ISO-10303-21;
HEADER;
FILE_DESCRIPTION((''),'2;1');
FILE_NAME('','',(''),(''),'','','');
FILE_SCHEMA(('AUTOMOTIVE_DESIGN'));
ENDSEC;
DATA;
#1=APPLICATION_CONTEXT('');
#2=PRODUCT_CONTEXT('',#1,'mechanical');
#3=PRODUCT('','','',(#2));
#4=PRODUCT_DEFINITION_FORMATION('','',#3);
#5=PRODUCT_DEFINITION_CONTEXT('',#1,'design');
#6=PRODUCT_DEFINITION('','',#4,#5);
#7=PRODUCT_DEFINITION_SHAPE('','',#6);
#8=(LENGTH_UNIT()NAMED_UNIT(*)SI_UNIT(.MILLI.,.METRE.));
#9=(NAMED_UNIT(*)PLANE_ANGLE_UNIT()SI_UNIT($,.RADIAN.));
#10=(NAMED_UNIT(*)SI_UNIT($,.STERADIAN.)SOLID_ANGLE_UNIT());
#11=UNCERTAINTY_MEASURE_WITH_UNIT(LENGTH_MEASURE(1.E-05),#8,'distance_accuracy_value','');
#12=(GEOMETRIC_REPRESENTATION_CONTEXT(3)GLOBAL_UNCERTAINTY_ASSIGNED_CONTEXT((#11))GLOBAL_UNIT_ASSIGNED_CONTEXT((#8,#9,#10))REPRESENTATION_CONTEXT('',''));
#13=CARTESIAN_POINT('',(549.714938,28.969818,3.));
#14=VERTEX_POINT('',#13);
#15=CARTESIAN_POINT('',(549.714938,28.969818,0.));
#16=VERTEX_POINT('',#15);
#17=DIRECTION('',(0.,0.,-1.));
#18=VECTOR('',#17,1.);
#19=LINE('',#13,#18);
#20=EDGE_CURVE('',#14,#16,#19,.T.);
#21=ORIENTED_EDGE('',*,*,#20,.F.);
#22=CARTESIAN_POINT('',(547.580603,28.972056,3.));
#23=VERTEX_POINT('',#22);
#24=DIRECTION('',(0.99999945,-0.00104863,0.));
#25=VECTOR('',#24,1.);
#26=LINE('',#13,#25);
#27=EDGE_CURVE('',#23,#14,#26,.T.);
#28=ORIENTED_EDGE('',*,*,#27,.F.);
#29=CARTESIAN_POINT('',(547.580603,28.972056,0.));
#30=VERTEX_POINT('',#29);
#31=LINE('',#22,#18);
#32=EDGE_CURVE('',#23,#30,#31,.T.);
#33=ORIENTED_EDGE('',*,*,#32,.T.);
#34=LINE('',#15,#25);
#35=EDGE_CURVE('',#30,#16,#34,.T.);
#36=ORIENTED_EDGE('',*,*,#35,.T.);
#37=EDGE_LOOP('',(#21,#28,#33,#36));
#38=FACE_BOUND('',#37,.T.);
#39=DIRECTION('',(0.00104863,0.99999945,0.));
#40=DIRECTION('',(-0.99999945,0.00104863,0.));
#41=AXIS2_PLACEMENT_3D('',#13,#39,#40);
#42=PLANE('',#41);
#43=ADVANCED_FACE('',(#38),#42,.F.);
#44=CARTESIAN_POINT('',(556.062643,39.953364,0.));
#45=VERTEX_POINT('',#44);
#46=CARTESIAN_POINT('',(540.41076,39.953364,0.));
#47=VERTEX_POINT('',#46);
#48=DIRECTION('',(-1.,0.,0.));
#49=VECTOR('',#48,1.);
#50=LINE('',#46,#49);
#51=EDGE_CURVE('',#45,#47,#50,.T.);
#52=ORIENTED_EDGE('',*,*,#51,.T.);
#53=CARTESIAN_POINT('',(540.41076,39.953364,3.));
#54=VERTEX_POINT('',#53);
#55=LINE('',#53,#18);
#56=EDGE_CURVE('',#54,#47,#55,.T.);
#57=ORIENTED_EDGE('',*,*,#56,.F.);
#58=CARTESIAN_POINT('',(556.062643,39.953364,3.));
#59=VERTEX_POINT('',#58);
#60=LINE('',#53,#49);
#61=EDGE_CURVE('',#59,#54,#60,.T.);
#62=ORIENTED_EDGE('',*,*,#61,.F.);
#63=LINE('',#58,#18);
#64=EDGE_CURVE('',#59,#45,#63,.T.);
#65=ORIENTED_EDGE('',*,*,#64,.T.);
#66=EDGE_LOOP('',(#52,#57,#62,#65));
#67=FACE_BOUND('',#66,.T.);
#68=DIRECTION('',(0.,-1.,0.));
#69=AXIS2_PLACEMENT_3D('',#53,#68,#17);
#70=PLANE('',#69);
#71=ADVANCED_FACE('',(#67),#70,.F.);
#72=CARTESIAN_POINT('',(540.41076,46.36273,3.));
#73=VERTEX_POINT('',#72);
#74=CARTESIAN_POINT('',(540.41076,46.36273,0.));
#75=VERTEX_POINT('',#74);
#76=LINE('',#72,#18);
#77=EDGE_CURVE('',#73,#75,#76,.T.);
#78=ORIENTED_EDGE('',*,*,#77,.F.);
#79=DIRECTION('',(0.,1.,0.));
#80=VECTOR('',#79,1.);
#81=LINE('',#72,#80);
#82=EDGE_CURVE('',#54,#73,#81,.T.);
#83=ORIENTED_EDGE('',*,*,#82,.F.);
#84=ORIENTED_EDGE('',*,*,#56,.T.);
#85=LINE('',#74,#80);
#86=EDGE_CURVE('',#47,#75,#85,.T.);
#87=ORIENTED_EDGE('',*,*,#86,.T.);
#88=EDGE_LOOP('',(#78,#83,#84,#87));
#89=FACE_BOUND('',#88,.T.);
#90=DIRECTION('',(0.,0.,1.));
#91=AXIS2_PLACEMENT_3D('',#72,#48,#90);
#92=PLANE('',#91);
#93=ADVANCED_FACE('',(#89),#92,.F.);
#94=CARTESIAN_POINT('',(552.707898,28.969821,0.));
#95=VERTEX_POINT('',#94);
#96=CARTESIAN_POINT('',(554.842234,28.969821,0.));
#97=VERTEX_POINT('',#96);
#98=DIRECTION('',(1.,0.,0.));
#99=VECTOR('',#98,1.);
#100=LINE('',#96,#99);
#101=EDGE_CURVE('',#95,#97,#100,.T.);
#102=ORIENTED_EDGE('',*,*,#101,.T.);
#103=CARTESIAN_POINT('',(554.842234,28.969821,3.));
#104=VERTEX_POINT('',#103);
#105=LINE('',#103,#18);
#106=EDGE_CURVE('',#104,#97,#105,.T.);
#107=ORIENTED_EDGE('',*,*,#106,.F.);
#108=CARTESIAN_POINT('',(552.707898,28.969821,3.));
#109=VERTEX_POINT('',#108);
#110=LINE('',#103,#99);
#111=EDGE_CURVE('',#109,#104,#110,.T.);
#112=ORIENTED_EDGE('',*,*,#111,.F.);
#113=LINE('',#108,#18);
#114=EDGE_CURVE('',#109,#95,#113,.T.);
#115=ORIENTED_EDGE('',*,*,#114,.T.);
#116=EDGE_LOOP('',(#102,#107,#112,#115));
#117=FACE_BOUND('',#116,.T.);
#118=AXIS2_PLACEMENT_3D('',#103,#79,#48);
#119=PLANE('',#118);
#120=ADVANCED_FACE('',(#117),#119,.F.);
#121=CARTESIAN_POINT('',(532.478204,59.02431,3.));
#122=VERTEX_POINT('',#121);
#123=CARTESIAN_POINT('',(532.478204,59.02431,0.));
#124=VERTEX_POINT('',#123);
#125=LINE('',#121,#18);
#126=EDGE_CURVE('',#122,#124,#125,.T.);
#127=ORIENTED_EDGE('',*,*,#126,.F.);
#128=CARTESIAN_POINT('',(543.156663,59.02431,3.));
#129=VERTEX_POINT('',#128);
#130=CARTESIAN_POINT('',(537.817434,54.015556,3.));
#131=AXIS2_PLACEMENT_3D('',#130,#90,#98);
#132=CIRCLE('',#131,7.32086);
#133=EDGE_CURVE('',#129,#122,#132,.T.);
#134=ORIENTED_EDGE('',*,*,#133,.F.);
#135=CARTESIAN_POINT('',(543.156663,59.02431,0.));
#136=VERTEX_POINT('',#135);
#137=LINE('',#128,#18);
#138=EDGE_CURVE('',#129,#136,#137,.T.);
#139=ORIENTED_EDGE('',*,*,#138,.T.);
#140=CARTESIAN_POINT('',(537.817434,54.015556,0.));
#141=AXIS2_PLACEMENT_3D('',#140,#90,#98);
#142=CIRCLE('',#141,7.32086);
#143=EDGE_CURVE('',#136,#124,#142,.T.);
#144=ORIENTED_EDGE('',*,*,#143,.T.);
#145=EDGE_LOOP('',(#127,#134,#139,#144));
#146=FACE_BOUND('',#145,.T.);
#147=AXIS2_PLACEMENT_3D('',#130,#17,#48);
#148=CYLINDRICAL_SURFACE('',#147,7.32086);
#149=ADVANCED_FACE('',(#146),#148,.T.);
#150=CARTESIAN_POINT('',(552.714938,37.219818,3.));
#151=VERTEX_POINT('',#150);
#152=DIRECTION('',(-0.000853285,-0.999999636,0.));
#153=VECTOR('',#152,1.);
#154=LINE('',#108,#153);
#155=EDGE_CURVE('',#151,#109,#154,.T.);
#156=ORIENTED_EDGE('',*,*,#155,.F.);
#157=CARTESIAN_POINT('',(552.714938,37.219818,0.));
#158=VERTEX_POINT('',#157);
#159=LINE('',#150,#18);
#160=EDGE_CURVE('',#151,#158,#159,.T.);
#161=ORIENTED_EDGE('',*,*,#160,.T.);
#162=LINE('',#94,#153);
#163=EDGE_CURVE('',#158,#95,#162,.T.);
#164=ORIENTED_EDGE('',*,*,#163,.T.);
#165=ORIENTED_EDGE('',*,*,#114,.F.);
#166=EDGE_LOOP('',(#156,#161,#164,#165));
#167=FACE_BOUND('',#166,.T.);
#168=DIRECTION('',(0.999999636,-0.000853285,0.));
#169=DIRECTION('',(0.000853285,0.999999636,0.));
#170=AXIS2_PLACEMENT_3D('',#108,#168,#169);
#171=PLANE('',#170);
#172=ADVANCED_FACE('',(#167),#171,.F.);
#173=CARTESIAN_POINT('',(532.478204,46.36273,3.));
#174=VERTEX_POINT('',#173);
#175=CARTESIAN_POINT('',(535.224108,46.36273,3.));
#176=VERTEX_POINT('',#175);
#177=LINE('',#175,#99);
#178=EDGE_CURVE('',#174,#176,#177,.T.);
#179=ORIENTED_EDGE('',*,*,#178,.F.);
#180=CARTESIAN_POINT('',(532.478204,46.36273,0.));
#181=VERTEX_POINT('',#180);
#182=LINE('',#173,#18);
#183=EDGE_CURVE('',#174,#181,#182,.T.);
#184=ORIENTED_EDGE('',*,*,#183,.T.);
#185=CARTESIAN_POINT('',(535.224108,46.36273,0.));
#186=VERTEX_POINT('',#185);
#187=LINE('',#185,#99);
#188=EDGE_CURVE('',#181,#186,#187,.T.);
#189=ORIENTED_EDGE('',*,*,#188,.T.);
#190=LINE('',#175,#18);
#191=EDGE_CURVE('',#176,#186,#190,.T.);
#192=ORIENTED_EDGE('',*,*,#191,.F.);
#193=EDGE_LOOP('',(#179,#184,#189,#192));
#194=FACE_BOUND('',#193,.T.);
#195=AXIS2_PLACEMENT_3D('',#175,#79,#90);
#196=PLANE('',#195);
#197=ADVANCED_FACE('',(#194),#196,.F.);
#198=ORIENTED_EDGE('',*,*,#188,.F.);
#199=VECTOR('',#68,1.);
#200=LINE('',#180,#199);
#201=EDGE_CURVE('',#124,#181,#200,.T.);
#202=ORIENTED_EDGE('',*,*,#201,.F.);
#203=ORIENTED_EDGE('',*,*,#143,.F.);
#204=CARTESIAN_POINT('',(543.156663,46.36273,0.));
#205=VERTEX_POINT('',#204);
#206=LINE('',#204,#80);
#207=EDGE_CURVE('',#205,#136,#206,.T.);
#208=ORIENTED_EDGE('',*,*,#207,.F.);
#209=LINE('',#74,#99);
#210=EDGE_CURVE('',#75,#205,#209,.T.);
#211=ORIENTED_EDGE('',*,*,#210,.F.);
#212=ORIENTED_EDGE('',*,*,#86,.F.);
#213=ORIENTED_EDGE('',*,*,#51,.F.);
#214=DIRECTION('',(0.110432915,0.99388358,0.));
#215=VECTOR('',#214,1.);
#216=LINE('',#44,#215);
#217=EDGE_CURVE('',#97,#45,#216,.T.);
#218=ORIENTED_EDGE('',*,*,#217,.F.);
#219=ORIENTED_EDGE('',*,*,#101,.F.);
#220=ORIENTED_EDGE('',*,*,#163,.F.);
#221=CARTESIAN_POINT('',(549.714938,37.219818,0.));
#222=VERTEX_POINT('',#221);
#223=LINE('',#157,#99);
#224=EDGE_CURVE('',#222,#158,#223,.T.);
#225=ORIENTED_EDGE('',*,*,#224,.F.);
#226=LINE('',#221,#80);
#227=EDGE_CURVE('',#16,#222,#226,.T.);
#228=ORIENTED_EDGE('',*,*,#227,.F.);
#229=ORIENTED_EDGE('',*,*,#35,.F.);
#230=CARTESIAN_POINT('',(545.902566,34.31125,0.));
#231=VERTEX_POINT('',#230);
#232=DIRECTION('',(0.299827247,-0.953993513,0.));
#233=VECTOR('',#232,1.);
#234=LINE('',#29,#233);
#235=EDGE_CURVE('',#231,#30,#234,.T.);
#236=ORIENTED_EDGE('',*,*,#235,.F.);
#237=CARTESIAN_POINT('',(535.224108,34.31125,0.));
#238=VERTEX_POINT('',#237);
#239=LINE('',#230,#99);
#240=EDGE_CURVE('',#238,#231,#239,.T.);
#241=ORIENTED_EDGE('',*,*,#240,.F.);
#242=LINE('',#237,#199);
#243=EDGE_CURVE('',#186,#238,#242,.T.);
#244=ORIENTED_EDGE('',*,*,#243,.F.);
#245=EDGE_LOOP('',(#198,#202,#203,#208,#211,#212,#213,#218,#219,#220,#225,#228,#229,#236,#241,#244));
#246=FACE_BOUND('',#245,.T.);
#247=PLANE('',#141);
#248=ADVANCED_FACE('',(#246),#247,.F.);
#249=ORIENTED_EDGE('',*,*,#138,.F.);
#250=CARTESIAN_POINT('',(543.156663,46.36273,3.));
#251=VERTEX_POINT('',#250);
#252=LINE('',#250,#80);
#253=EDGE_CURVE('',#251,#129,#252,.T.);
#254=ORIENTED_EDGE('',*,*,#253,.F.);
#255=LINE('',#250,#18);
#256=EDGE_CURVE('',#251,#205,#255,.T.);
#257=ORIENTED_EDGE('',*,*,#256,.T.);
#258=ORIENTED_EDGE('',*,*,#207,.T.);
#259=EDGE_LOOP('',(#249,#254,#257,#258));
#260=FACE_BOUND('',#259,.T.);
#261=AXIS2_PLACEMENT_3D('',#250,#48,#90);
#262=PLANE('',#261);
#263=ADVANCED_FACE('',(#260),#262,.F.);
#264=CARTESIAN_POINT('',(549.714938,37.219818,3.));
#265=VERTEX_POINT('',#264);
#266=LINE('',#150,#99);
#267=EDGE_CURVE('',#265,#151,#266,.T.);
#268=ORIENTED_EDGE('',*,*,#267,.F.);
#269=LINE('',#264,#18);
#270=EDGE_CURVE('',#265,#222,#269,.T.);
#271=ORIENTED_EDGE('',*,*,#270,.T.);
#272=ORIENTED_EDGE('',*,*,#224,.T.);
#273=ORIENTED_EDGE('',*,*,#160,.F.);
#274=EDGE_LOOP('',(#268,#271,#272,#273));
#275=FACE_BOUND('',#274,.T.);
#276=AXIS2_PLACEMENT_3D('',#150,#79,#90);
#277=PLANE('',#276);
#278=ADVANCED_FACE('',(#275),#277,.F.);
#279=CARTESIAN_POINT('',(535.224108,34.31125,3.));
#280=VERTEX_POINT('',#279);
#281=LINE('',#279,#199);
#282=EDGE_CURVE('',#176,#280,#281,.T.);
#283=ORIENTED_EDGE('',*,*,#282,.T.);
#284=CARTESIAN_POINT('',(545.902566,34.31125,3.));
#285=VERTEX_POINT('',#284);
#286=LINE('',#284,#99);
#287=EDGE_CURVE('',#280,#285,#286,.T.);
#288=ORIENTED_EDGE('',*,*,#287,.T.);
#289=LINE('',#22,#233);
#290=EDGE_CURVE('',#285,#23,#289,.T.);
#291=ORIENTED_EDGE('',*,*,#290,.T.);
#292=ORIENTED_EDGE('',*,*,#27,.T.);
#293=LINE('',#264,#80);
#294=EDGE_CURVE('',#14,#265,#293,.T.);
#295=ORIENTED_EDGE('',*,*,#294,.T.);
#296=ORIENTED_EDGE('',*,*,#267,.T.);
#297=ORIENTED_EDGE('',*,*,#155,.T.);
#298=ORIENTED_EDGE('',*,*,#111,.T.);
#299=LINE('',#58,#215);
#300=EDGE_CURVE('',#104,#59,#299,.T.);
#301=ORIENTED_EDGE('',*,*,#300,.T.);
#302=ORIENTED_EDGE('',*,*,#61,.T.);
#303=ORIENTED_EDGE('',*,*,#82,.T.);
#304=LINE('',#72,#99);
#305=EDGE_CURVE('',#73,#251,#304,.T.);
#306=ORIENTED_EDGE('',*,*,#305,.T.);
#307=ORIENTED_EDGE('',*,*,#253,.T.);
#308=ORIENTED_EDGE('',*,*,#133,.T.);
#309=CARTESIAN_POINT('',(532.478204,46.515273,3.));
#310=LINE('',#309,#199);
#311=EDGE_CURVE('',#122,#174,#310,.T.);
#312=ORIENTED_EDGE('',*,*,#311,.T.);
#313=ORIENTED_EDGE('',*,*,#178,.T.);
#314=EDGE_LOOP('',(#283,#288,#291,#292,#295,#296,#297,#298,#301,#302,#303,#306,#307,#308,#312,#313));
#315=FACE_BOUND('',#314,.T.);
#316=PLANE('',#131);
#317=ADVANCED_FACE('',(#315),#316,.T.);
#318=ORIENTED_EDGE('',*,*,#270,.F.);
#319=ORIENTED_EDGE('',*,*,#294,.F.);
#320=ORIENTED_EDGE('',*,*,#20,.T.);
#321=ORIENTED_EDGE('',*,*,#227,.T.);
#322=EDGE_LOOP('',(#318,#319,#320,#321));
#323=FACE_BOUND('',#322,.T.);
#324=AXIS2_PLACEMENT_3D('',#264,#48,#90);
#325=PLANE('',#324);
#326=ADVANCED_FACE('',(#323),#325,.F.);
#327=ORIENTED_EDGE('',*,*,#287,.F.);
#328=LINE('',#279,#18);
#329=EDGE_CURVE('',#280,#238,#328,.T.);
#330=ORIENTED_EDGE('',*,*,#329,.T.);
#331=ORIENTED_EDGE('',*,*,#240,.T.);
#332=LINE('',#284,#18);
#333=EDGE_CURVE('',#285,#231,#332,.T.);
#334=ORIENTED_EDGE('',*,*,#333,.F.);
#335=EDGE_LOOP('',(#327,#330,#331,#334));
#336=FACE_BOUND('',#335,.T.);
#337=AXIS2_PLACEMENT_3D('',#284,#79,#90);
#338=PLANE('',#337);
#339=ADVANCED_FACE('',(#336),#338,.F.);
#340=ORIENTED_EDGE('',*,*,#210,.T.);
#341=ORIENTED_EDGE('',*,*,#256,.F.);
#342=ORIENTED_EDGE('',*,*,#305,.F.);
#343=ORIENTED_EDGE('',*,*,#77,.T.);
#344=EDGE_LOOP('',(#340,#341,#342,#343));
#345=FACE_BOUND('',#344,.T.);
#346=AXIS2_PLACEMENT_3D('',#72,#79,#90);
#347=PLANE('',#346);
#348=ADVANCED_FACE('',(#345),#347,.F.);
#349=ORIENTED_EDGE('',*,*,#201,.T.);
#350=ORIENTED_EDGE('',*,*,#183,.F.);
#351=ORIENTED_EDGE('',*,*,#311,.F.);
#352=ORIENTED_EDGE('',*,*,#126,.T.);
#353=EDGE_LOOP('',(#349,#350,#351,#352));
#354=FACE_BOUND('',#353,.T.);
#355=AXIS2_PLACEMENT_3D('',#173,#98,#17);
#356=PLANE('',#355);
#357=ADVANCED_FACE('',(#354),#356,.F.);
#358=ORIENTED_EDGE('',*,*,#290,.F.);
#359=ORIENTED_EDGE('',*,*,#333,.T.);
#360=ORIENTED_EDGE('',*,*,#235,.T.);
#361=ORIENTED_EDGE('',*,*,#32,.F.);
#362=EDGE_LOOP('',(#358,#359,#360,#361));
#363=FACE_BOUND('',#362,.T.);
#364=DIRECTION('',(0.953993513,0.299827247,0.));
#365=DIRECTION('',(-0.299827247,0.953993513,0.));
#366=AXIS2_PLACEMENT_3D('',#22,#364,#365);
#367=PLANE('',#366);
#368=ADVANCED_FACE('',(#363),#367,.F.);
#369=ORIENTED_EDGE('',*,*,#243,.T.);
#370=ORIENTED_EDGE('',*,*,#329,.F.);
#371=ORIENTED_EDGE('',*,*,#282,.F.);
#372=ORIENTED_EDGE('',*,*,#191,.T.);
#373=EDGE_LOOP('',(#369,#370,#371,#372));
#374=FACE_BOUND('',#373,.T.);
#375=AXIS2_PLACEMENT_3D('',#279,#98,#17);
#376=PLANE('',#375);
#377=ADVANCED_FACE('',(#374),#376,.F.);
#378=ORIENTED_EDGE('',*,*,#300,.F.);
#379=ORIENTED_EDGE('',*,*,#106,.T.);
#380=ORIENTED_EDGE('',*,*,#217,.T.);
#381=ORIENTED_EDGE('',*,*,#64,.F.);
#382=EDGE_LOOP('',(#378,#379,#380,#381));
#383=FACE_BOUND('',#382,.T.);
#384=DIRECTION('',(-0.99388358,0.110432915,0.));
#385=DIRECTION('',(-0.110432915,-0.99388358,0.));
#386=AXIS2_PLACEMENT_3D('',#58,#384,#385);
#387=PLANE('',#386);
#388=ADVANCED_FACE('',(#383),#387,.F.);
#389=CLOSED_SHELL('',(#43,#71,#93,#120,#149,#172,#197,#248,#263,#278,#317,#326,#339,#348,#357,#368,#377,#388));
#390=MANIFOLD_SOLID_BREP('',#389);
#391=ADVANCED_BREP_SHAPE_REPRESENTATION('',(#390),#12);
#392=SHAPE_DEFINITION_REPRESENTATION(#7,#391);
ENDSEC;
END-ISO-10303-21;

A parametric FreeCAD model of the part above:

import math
import FreeCAD as App
import Part
import Sketcher

V = App.Vector
Q = App.Units.Quantity

doc = App.newDocument("Part")
params = doc.addObject("Spreadsheet::Sheet", "Params")
for row, (alias, value) in enumerate([
    ("sketch1_width", "3 mm"),
    ("sketch1_height", "8.25 mm"),
    ("sketch1_length", "8.25 mm"),
    ("pad1_length", "3 mm"),
], start=1):
    params.set(f"A{row}", alias)
    params.set(f"B{row}", "=" + value)
    params.setAlias(f"B{row}", alias)

body = doc.addObject("PartDesign::Body", "Body")

sketch1 = body.newObject("Sketcher::SketchObject", "Sketch")
sketch1.AttachmentSupport = (doc.getObject("XY_Plane"), [""])
sketch1.MapMode = "FlatFace"
sketch1.addGeometry(Part.LineSegment(V(540.41076, 39.953364, 0), V(540.41076, 46.36273, 0)), False)
sketch1.addGeometry(Part.LineSegment(V(540.41076, 46.36273, 0), V(543.156663, 46.36273, 0)), False)
sketch1.addGeometry(Part.LineSegment(V(543.156663, 46.36273, 0), V(543.156663, 59.02431, 0)), False)
sketch1.addGeometry(Part.ArcOfCircle(Part.Circle(V(537.817434, 54.015556, 0), V(0, 0, 1), 7.32086), math.radians(43.170812), math.radians(136.829188)), False)
sketch1.addGeometry(Part.LineSegment(V(532.478204, 59.02431, 0), V(532.478204, 46.36273, 0)), False)
sketch1.addGeometry(Part.LineSegment(V(532.478204, 46.36273, 0), V(535.224108, 46.36273, 0)), False)
sketch1.addGeometry(Part.LineSegment(V(535.224108, 46.36273, 0), V(535.224108, 34.31125, 0)), False)
sketch1.addGeometry(Part.LineSegment(V(535.224108, 34.31125, 0), V(545.902566, 34.31125, 0)), False)
sketch1.addGeometry(Part.LineSegment(V(545.902566, 34.31125, 0), V(547.580603, 28.972056, 0)), False)
sketch1.addGeometry(Part.LineSegment(V(547.580603, 28.972056, 0), V(549.714938, 28.969818, 0)), False)
sketch1.addGeometry(Part.LineSegment(V(549.714938, 28.969818, 0), V(549.714938, 37.219818, 0)), False)
sketch1.addGeometry(Part.LineSegment(V(549.714938, 37.219818, 0), V(552.714938, 37.219818, 0)), False)
sketch1.addGeometry(Part.LineSegment(V(552.714938, 37.219818, 0), V(552.707898, 28.969821, 0)), False)
sketch1.addGeometry(Part.LineSegment(V(552.707898, 28.969821, 0), V(554.842234, 28.969821, 0)), False)
sketch1.addGeometry(Part.LineSegment(V(554.842234, 28.969821, 0), V(556.062643, 39.953364, 0)), False)
sketch1.addGeometry(Part.LineSegment(V(556.062643, 39.953364, 0), V(540.41076, 39.953364, 0)), False)
sketch1.addConstraint(Sketcher.Constraint("Coincident", 0, 2, 1, 1))
sketch1.addConstraint(Sketcher.Constraint("Coincident", 1, 2, 2, 1))
sketch1.addConstraint(Sketcher.Constraint("Coincident", 2, 2, 3, 1))
sketch1.addConstraint(Sketcher.Constraint("Coincident", 3, 2, 4, 1))
sketch1.addConstraint(Sketcher.Constraint("Coincident", 4, 2, 5, 1))
sketch1.addConstraint(Sketcher.Constraint("Coincident", 5, 2, 6, 1))
sketch1.addConstraint(Sketcher.Constraint("Coincident", 6, 2, 7, 1))
sketch1.addConstraint(Sketcher.Constraint("Coincident", 7, 2, 8, 1))
sketch1.addConstraint(Sketcher.Constraint("Coincident", 8, 2, 9, 1))
sketch1.addConstraint(Sketcher.Constraint("Coincident", 9, 2, 10, 1))
sketch1.addConstraint(Sketcher.Constraint("Coincident", 10, 2, 11, 1))
sketch1.addConstraint(Sketcher.Constraint("Coincident", 11, 2, 12, 1))
sketch1.addConstraint(Sketcher.Constraint("Coincident", 12, 2, 13, 1))
sketch1.addConstraint(Sketcher.Constraint("Coincident", 13, 2, 14, 1))
sketch1.addConstraint(Sketcher.Constraint("Coincident", 14, 2, 15, 1))
sketch1.addConstraint(Sketcher.Constraint("Coincident", 15, 2, 0, 1))
sketch1.addConstraint(Sketcher.Constraint("Vertical", 0))
sketch1.addConstraint(Sketcher.Constraint("Horizontal", 1))
sketch1.addConstraint(Sketcher.Constraint("Vertical", 2))
sketch1.addConstraint(Sketcher.Constraint("Vertical", 4))
sketch1.addConstraint(Sketcher.Constraint("Horizontal", 5))
sketch1.addConstraint(Sketcher.Constraint("Vertical", 6))
sketch1.addConstraint(Sketcher.Constraint("Horizontal", 7))
sketch1.addConstraint(Sketcher.Constraint("Vertical", 10))
sketch1.addConstraint(Sketcher.Constraint("Horizontal", 11))
sketch1.addConstraint(Sketcher.Constraint("Horizontal", 13))
sketch1.addConstraint(Sketcher.Constraint("Horizontal", 15))
sketch1.addConstraint(Sketcher.Constraint("Horizontal", 2, 2, 3, 2))
sketch1.addConstraint(Sketcher.Constraint("Horizontal", 1, 2, 4, 2))
sketch1.addConstraint(Sketcher.Constraint("Equal", 1, 5))
sketch1.addConstraint(Sketcher.Constraint("DistanceX", 11, 1, 11, 2, Q("3 mm")))
sketch1.addConstraint(Sketcher.Constraint("DistanceY", 10, 1, 10, 2, Q("8.25 mm")))
sketch1.addConstraint(Sketcher.Constraint("Distance", 12, Q("8.25 mm")))
sketch1.addConstraint(Sketcher.Constraint("Radius", 3, Q("7.32086 mm")))
sketch1.addConstraint(Sketcher.Constraint("DistanceX", 7, 1, 7, 2, Q("10.678459 mm")))
sketch1.addConstraint(Sketcher.Constraint("DistanceY", 2, 1, 2, 2, Q("12.66158 mm")))
sketch1.addConstraint(Sketcher.Constraint("DistanceY", 6, 2, 6, 1, Q("12.05148 mm")))
sketch1.addConstraint(Sketcher.Constraint("DistanceX", 1, 1, 1, 2, Q("2.745903 mm")))
sketch1.addConstraint(Sketcher.Constraint("DistanceX", 13, 1, 13, 2, Q("2.134336 mm")))
sketch1.addConstraint(Sketcher.Constraint("DistanceX", 15, 2, 15, 1, Q("15.651884 mm")))
sketch1.addConstraint(Sketcher.Constraint("DistanceY", 0, 1, 0, 2, Q("6.409366 mm")))
sketch1.addConstraint(Sketcher.Constraint("DistanceX", -1, 1, 0, 2, Q("540.41076 mm")))
sketch1.addConstraint(Sketcher.Constraint("DistanceY", -1, 1, 0, 2, Q("46.36273 mm")))
sketch1.addConstraint(Sketcher.Constraint("DistanceY", -1, 1, 12, 2, Q("28.969821 mm")))
sketch1.addConstraint(Sketcher.Constraint("DistanceX", 3, 3, 1, 2, Q("5.339229 mm")))
sketch1.addConstraint(Sketcher.Constraint("DistanceX", 1, 2, 8, 2, Q("4.42394 mm")))
sketch1.addConstraint(Sketcher.Constraint("DistanceY", 9, 2, 8, 2, Q("0.002238 mm")))
sketch1.addConstraint(Sketcher.Constraint("DistanceX", 7, 2, 9, 2, Q("3.812371 mm")))
sketch1.addConstraint(Sketcher.Constraint("DistanceX", 9, 2, 12, 2, Q("2.99296 mm")))
sketch1.setExpression("Constraints[30]", "Params.sketch1_width")
sketch1.setExpression("Constraints[31]", "Params.sketch1_height")
sketch1.setExpression("Constraints[32]", "Params.sketch1_length")
pad1 = body.newObject("PartDesign::Pad", "Pad")
pad1.Profile = sketch1
pad1.setExpression("Length", "Params.pad1_length")

doc.recompute()
